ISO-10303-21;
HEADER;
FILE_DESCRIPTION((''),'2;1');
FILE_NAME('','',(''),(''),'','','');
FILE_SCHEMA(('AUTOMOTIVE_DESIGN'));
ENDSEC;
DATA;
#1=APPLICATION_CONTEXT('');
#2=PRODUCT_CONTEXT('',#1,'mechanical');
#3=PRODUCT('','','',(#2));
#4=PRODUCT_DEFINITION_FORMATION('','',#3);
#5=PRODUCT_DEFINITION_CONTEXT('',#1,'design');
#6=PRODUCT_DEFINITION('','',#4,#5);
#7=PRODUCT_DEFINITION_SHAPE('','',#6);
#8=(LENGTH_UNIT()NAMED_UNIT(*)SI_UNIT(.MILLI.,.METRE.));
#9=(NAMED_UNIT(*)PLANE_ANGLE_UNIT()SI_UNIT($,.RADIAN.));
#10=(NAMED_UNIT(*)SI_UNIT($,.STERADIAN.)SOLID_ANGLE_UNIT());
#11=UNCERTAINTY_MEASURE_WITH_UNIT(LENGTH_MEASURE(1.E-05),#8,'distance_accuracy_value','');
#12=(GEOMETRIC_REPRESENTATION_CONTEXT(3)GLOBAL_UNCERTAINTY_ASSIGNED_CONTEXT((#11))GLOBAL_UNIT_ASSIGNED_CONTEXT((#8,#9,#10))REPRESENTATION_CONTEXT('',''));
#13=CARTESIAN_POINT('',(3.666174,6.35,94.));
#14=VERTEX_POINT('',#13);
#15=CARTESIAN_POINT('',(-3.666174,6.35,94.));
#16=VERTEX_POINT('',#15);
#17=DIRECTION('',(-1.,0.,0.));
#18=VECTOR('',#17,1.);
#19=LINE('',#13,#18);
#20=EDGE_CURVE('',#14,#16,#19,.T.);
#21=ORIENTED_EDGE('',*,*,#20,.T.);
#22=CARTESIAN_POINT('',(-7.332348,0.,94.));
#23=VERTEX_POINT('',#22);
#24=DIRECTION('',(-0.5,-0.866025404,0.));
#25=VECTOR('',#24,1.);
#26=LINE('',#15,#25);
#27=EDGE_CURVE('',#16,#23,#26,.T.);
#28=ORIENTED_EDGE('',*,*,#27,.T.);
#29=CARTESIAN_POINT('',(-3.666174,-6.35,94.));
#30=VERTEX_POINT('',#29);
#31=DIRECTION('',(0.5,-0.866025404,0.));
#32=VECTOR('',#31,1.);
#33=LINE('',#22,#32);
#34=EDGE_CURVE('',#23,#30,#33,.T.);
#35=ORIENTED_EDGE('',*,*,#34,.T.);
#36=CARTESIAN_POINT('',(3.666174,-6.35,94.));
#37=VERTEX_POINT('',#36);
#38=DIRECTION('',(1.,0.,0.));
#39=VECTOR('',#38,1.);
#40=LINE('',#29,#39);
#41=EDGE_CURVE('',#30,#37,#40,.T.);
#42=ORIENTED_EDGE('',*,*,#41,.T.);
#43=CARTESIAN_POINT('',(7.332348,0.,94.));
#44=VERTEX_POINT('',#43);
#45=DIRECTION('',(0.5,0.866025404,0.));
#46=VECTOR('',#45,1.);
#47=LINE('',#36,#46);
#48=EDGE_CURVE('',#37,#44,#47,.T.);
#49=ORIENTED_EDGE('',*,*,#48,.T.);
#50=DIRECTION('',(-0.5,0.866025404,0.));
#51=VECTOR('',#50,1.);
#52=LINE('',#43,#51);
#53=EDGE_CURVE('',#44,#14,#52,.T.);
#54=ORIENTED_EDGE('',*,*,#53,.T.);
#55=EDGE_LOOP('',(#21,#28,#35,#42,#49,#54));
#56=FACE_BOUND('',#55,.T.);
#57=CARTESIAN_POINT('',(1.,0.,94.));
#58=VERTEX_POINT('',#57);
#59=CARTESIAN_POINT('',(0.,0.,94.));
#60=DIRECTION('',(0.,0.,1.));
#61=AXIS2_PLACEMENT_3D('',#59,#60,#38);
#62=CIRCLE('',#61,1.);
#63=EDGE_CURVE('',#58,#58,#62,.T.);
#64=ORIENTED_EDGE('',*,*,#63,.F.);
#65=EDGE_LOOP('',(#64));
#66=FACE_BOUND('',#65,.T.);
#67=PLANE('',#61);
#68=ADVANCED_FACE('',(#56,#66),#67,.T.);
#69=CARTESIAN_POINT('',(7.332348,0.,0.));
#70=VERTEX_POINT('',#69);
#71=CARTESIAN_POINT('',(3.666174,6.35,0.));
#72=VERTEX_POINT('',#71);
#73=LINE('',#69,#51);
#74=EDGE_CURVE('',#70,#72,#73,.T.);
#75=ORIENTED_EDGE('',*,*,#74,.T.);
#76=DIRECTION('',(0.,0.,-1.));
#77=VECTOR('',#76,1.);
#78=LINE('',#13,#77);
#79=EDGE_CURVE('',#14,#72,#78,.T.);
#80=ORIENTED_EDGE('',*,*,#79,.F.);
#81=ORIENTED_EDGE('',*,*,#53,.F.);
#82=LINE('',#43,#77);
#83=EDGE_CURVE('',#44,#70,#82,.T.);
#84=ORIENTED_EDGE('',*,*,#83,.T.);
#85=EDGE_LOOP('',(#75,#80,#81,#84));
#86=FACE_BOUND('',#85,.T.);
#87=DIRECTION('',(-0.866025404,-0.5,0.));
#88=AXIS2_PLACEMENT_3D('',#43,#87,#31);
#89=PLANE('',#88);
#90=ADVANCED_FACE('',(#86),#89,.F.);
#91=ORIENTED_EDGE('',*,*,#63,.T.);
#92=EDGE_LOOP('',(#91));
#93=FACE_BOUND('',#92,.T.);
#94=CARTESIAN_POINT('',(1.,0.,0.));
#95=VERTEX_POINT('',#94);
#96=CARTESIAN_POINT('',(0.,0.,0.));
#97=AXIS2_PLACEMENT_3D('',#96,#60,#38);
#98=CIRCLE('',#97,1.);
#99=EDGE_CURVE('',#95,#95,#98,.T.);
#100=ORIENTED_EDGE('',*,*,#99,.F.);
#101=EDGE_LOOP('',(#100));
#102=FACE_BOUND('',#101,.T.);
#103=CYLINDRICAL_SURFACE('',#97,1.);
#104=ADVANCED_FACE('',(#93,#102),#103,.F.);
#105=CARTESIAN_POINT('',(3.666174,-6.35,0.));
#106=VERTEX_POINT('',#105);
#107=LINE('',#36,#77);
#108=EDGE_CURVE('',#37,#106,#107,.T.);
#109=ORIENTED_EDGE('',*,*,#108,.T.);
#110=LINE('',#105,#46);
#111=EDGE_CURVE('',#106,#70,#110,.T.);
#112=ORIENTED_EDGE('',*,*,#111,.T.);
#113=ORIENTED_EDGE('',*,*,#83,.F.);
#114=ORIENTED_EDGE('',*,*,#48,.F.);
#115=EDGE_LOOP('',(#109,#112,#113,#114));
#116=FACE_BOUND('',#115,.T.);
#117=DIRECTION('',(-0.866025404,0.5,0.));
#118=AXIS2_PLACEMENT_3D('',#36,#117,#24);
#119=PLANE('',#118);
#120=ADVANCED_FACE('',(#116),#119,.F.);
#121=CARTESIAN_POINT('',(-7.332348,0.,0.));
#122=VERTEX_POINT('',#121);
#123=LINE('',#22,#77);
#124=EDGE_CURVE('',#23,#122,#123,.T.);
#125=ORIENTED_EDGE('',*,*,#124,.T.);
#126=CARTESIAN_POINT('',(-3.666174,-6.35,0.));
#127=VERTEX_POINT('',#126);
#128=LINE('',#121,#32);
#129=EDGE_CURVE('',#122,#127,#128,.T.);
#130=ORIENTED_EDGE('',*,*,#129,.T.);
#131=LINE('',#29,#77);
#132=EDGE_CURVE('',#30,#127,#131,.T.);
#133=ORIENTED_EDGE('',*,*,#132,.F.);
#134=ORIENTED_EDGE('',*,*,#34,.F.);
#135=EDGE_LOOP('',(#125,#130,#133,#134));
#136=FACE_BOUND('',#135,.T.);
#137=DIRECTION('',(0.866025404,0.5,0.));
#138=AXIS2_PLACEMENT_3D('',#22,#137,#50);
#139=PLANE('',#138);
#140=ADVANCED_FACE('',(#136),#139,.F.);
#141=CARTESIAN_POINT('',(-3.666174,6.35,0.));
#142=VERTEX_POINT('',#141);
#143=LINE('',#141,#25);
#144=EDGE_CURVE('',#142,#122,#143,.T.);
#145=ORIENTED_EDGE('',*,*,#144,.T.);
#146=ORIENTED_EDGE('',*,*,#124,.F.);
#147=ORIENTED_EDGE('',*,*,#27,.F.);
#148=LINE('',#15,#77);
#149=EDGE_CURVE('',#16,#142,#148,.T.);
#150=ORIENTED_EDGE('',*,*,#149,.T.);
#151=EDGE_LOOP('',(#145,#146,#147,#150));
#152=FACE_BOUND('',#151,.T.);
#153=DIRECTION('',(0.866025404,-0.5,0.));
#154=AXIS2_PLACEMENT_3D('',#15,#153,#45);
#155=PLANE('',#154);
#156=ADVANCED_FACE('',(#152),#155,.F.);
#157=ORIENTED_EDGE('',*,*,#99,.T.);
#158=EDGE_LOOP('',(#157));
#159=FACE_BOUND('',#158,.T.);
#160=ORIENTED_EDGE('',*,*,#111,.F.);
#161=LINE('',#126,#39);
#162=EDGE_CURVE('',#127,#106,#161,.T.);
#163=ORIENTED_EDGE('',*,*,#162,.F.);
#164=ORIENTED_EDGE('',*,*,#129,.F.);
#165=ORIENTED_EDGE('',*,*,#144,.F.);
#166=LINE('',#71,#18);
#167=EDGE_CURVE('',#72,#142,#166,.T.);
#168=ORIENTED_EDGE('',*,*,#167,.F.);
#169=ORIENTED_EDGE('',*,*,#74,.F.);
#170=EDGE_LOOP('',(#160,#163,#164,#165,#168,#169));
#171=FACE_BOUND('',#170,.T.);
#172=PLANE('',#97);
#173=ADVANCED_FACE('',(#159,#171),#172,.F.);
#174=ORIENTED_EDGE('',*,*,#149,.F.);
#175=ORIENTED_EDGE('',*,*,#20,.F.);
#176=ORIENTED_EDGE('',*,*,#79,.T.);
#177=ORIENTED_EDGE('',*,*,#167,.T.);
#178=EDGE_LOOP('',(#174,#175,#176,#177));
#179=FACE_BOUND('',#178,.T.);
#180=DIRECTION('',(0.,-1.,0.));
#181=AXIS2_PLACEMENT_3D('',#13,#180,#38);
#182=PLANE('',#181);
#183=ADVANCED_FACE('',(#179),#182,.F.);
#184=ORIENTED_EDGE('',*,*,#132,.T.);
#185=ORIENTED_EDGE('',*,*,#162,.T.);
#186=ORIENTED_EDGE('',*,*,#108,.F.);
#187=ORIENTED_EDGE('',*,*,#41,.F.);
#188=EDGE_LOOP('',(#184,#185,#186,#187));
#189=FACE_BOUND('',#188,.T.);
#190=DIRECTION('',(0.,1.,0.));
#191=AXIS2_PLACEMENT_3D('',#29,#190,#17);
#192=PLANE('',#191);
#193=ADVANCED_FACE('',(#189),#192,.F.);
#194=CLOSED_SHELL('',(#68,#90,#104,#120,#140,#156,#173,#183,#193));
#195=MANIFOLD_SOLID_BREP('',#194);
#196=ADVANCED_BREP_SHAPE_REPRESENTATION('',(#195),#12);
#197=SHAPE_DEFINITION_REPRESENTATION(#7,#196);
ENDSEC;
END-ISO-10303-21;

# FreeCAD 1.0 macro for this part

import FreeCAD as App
import Part
import Sketcher
Q = App.Units.Quantity

doc = App.newDocument("Part")
body = doc.addObject("PartDesign::Body", "Body")

# Sketch on XY plane
sketch1 = body.newObject("Sketcher::SketchObject", "Sketch")
sketch1.AttachmentSupport = (doc.getObject("XY_Plane"), [""])
sketch1.MapMode = "FlatFace"
sketch1.addGeometry(Part.LineSegment(App.Vector(7, 0, 0), App.Vector(4, 6, 0)), False)
sketch1.addGeometry(Part.LineSegment(App.Vector(4, 6, 0), App.Vector(-4, 6, 0)), False)
sketch1.addGeometry(Part.LineSegment(App.Vector(-4, 6, 0), App.Vector(-7, 0, 0)), False)
sketch1.addGeometry(Part.LineSegment(App.Vector(-7, 0, 0), App.Vector(-4, -6, 0)), False)
sketch1.addGeometry(Part.LineSegment(App.Vector(-4, -6, 0), App.Vector(4, -6, 0)), False)
sketch1.addGeometry(Part.LineSegment(App.Vector(4, -6, 0), App.Vector(7, 0, 0)), False)
sketch1.addConstraint(Sketcher.Constraint("Coincident", 0, 2, 1, 1))
sketch1.addConstraint(Sketcher.Constraint("Coincident", 1, 2, 2, 1))
sketch1.addConstraint(Sketcher.Constraint("Coincident", 2, 2, 3, 1))
sketch1.addConstraint(Sketcher.Constraint("Coincident", 3, 2, 4, 1))
sketch1.addConstraint(Sketcher.Constraint("Coincident", 4, 2, 5, 1))
sketch1.addConstraint(Sketcher.Constraint("Coincident", 5, 2, 0, 1))
sketch1.addConstraint(Sketcher.Constraint("Horizontal", 1))
sketch1.addConstraint(Sketcher.Constraint("Horizontal", 4))
sketch1.addConstraint(Sketcher.Constraint("Symmetric", 0, 2, 3, 2, -1, 1))
sketch1.addConstraint(Sketcher.Constraint("Symmetric", 2, 2, 5, 2, -1, 1))
sketch1.addConstraint(Sketcher.Constraint("PointOnObject", 2, 2, -1))
sketch1.addConstraint(Sketcher.Constraint("Parallel", 2, 5))
sketch1.addConstraint(Sketcher.Constraint("Vertical", 1, 2, 3, 2))
sketch1.addConstraint(Sketcher.Constraint("Angle", 0, Q("120 deg")))
sketch1.addConstraint(Sketcher.Constraint("DistanceY", 3, 2, 1, 2, 12.7))
sketch1.addConstraint(Sketcher.Constraint("DistanceX", 1, 2, 1, 1, 7.332348))
pad1 = body.newObject("PartDesign::Pad", "Pad")
pad1.Profile = sketch1
pad1.Length = 94

# Sketch on XY plane
sketch2 = body.newObject("Sketcher::SketchObject", "Sketch001")
sketch2.AttachmentSupport = (doc.getObject("XY_Plane"), [""])
sketch2.MapMode = "FlatFace"
sketch2.AttachmentOffset = App.Placement(App.Vector(0, 0, 94), App.Rotation())
sketch2.addGeometry(Part.Circle(App.Vector(0, 0, 0), App.Vector(0, 0, 1), 1), False)
sketch2.addConstraint(Sketcher.Constraint("Coincident", 0, 3, -1, 1))
sketch2.addConstraint(Sketcher.Constraint("Diameter", 0, 2.0))
pocket1 = body.newObject("PartDesign::Pocket", "Pocket")
pocket1.Profile = sketch2
pocket1.Type = "ThroughAll"

doc.recompute()
